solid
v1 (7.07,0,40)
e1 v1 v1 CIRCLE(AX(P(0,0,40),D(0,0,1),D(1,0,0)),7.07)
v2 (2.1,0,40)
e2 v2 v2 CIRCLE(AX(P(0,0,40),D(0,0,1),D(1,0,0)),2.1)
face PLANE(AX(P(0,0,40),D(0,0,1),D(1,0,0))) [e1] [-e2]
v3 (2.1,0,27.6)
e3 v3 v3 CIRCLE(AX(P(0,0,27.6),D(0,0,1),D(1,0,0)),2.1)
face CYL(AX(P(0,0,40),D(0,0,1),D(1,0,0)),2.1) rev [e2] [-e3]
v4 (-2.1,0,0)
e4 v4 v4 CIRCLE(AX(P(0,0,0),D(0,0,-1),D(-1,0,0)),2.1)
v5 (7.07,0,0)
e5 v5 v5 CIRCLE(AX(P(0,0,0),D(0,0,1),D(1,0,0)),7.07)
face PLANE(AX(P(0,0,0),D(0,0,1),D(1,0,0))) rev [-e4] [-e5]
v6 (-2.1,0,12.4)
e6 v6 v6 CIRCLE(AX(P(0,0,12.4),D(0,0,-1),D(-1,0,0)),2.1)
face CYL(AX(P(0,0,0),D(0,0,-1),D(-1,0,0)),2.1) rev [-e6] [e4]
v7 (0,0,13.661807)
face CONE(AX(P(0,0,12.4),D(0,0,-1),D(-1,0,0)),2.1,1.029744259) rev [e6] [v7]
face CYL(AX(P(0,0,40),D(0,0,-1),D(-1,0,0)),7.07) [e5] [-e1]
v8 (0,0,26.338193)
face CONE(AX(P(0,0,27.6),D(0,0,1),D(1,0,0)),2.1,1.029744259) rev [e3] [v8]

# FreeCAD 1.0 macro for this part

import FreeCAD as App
import Part
import Sketcher
Q = App.Units.Quantity

doc = App.newDocument("Part")
params = doc.addObject("Spreadsheet::Sheet", "Params")
for row, (alias, value) in enumerate([
    ("sketch1_diameter", "14.14 mm"),
    ("pad1_length", "40 mm"),
    ("sketch2_diameter", "4.2 mm"),
    ("hole_diameter", "4.2 mm"),
    ("hole_depth", "12.4 mm"),
    ("sketch3_diameter", "4.2 mm"),
    ("hole2_diameter", "4.2 mm"),
    ("hole2_depth", "12.4 mm"),
], start=1):
    params.set(f"A{row}", alias)
    params.set(f"B{row}", "=" + value)
    params.setAlias(f"B{row}", alias)

body = doc.addObject("PartDesign::Body", "Body")

# Sketch on XY plane
sketch1 = body.newObject("Sketcher::SketchObject", "Sketch")
sketch1.AttachmentSupport = (doc.getObject("XY_Plane"), [""])
sketch1.MapMode = "FlatFace"
sketch1.addGeometry(Part.Circle(App.Vector(0, 0, 0), App.Vector(0, 0, 1), 7), False)
sketch1.addConstraint([
    Sketcher.Constraint("Coincident", 0, 3, -1, 1),
    Sketcher.Constraint("Diameter", 0, Q("14.14 mm")),
])
sketch1.setExpression("Constraints[1]", "Params.sketch1_diameter")
pad1 = body.newObject("PartDesign::Pad", "Pad")
pad1.Profile = sketch1
pad1.setExpression("Length", "Params.pad1_length")

# Sketch on XY plane
sketch2 = body.newObject("Sketcher::SketchObject", "Sketch001")
sketch2.AttachmentSupport = (doc.getObject("XY_Plane"), [""])
sketch2.MapMode = "FlatFace"
sketch2.AttachmentOffset = App.Placement(App.Vector(0, 0, 40), App.Rotation())
sketch2.addGeometry(Part.Circle(App.Vector(0, 0, 0), App.Vector(0, 0, 1), 2.1), False)
sketch2.addConstraint([
    Sketcher.Constraint("Coincident", 0, 3, -1, 1),
    Sketcher.Constraint("Diameter", 0, Q("4.2 mm")),
])
sketch2.setExpression("Constraints[1]", "Params.sketch2_diameter")
doc.recompute()
hole = body.newObject("PartDesign::Hole", "Hole")
hole.Profile = sketch2
hole.ThreadType = "None"
hole.setExpression("Diameter", "Params.hole_diameter")
hole.DepthType = "Dimension"
hole.setExpression("Depth", "Params.hole_depth")
hole.DrillPoint = "Angled"
hole.DrillPointAngle = 118

# Sketch on XY plane
sketch3 = body.newObject("Sketcher::SketchObject", "Sketch002")
sketch3.AttachmentSupport = (doc.getObject("XY_Plane"), [""])
sketch3.MapMode = "FlatFace"
sketch3.addGeometry(Part.Circle(App.Vector(0, 0, 0), App.Vector(0, 0, 1), 2.1), False)
sketch3.addConstraint([
    Sketcher.Constraint("Coincident", 0, 3, -1, 1),
    Sketcher.Constraint("Diameter", 0, Q("4.2 mm")),
])
sketch3.setExpression("Constraints[1]", "Params.sketch3_diameter")
doc.recompute()
hole2 = body.newObject("PartDesign::Hole", "Hole001")
hole2.Profile = sketch3
hole2.ThreadType = "None"
hole2.setExpression("Diameter", "Params.hole2_diameter")
hole2.DepthType = "Dimension"
hole2.setExpression("Depth", "Params.hole2_depth")
hole2.DrillPoint = "Angled"
hole2.DrillPointAngle = 118
hole2.Reversed = True

doc.recompute()
